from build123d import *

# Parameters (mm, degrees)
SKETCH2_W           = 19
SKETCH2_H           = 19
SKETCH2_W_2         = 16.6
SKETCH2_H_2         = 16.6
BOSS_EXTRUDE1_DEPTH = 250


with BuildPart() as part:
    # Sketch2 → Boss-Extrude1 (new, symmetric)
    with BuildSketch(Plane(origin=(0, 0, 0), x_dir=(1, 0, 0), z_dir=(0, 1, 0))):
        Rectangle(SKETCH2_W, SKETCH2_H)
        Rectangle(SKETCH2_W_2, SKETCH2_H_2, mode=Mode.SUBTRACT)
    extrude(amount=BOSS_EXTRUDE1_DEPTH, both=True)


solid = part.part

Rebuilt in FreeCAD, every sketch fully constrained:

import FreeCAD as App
import Part
import Sketcher
from FreeCAD import Vector


def add_polygon(sketch, points):
    """Adds a closed chain of lines whose ends are joined by coincident constraints."""
    first, n = sketch.GeometryCount, len(points)
    for a, b in zip(points, points[1:] + points[:1]):
        sketch.addGeometry(Part.LineSegment(App.Vector(*a, 0), App.Vector(*b, 0)), False)
    for i in range(n):
        sketch.addConstraint(Sketcher.Constraint("Coincident", first + i, 2, first + (i + 1) % n, 1))

doc = App.newDocument("Part")
body = doc.addObject("PartDesign::Body", "Body")

# Sketch on XZ plane
sketch1 = body.newObject("Sketcher::SketchObject", "Sketch")
sketch1.AttachmentSupport = (doc.getObject("XZ_Plane"), [""])
sketch1.MapMode = "FlatFace"
add_polygon(sketch1, [(-10, -10), (-10, 10), (10, 10), (10, -10)])  # lines 0-3
add_polygon(sketch1, [(8, 8), (-8, 8), (-8, -8), (8, -8)])  # lines 4-7
sketch1.addConstraint(Sketcher.Constraint("Vertical", 0))
sketch1.addConstraint(Sketcher.Constraint("Horizontal", 1))
sketch1.addConstraint(Sketcher.Constraint("Vertical", 2))
sketch1.addConstraint(Sketcher.Constraint("Horizontal", 3))
sketch1.addConstraint(Sketcher.Constraint("Horizontal", 4))
sketch1.addConstraint(Sketcher.Constraint("Vertical", 5))
sketch1.addConstraint(Sketcher.Constraint("Horizontal", 6))
sketch1.addConstraint(Sketcher.Constraint("Vertical", 7))
sketch1.addConstraint(Sketcher.Constraint("Symmetric", 0, 2, 2, 2, -1, 1))
sketch1.addConstraint(Sketcher.Constraint("Symmetric", 4, 2, 6, 2, -1, 1))
sketch1.addConstraint(Sketcher.Constraint("Equal", 3, 0))
sketch1.addConstraint(Sketcher.Constraint("Equal", 6, 5))
sketch1.addConstraint(Sketcher.Constraint("DistanceX", 1, 1, 1, 2, 19.0))
sketch1.addConstraint(Sketcher.Constraint("DistanceX", 4, 2, 4, 1, 16.6))
pad1 = body.newObject("PartDesign::Pad", "Pad")
pad1.Profile = sketch1
pad1.Length = 500
pad1.Midplane = True

doc.recompute()
